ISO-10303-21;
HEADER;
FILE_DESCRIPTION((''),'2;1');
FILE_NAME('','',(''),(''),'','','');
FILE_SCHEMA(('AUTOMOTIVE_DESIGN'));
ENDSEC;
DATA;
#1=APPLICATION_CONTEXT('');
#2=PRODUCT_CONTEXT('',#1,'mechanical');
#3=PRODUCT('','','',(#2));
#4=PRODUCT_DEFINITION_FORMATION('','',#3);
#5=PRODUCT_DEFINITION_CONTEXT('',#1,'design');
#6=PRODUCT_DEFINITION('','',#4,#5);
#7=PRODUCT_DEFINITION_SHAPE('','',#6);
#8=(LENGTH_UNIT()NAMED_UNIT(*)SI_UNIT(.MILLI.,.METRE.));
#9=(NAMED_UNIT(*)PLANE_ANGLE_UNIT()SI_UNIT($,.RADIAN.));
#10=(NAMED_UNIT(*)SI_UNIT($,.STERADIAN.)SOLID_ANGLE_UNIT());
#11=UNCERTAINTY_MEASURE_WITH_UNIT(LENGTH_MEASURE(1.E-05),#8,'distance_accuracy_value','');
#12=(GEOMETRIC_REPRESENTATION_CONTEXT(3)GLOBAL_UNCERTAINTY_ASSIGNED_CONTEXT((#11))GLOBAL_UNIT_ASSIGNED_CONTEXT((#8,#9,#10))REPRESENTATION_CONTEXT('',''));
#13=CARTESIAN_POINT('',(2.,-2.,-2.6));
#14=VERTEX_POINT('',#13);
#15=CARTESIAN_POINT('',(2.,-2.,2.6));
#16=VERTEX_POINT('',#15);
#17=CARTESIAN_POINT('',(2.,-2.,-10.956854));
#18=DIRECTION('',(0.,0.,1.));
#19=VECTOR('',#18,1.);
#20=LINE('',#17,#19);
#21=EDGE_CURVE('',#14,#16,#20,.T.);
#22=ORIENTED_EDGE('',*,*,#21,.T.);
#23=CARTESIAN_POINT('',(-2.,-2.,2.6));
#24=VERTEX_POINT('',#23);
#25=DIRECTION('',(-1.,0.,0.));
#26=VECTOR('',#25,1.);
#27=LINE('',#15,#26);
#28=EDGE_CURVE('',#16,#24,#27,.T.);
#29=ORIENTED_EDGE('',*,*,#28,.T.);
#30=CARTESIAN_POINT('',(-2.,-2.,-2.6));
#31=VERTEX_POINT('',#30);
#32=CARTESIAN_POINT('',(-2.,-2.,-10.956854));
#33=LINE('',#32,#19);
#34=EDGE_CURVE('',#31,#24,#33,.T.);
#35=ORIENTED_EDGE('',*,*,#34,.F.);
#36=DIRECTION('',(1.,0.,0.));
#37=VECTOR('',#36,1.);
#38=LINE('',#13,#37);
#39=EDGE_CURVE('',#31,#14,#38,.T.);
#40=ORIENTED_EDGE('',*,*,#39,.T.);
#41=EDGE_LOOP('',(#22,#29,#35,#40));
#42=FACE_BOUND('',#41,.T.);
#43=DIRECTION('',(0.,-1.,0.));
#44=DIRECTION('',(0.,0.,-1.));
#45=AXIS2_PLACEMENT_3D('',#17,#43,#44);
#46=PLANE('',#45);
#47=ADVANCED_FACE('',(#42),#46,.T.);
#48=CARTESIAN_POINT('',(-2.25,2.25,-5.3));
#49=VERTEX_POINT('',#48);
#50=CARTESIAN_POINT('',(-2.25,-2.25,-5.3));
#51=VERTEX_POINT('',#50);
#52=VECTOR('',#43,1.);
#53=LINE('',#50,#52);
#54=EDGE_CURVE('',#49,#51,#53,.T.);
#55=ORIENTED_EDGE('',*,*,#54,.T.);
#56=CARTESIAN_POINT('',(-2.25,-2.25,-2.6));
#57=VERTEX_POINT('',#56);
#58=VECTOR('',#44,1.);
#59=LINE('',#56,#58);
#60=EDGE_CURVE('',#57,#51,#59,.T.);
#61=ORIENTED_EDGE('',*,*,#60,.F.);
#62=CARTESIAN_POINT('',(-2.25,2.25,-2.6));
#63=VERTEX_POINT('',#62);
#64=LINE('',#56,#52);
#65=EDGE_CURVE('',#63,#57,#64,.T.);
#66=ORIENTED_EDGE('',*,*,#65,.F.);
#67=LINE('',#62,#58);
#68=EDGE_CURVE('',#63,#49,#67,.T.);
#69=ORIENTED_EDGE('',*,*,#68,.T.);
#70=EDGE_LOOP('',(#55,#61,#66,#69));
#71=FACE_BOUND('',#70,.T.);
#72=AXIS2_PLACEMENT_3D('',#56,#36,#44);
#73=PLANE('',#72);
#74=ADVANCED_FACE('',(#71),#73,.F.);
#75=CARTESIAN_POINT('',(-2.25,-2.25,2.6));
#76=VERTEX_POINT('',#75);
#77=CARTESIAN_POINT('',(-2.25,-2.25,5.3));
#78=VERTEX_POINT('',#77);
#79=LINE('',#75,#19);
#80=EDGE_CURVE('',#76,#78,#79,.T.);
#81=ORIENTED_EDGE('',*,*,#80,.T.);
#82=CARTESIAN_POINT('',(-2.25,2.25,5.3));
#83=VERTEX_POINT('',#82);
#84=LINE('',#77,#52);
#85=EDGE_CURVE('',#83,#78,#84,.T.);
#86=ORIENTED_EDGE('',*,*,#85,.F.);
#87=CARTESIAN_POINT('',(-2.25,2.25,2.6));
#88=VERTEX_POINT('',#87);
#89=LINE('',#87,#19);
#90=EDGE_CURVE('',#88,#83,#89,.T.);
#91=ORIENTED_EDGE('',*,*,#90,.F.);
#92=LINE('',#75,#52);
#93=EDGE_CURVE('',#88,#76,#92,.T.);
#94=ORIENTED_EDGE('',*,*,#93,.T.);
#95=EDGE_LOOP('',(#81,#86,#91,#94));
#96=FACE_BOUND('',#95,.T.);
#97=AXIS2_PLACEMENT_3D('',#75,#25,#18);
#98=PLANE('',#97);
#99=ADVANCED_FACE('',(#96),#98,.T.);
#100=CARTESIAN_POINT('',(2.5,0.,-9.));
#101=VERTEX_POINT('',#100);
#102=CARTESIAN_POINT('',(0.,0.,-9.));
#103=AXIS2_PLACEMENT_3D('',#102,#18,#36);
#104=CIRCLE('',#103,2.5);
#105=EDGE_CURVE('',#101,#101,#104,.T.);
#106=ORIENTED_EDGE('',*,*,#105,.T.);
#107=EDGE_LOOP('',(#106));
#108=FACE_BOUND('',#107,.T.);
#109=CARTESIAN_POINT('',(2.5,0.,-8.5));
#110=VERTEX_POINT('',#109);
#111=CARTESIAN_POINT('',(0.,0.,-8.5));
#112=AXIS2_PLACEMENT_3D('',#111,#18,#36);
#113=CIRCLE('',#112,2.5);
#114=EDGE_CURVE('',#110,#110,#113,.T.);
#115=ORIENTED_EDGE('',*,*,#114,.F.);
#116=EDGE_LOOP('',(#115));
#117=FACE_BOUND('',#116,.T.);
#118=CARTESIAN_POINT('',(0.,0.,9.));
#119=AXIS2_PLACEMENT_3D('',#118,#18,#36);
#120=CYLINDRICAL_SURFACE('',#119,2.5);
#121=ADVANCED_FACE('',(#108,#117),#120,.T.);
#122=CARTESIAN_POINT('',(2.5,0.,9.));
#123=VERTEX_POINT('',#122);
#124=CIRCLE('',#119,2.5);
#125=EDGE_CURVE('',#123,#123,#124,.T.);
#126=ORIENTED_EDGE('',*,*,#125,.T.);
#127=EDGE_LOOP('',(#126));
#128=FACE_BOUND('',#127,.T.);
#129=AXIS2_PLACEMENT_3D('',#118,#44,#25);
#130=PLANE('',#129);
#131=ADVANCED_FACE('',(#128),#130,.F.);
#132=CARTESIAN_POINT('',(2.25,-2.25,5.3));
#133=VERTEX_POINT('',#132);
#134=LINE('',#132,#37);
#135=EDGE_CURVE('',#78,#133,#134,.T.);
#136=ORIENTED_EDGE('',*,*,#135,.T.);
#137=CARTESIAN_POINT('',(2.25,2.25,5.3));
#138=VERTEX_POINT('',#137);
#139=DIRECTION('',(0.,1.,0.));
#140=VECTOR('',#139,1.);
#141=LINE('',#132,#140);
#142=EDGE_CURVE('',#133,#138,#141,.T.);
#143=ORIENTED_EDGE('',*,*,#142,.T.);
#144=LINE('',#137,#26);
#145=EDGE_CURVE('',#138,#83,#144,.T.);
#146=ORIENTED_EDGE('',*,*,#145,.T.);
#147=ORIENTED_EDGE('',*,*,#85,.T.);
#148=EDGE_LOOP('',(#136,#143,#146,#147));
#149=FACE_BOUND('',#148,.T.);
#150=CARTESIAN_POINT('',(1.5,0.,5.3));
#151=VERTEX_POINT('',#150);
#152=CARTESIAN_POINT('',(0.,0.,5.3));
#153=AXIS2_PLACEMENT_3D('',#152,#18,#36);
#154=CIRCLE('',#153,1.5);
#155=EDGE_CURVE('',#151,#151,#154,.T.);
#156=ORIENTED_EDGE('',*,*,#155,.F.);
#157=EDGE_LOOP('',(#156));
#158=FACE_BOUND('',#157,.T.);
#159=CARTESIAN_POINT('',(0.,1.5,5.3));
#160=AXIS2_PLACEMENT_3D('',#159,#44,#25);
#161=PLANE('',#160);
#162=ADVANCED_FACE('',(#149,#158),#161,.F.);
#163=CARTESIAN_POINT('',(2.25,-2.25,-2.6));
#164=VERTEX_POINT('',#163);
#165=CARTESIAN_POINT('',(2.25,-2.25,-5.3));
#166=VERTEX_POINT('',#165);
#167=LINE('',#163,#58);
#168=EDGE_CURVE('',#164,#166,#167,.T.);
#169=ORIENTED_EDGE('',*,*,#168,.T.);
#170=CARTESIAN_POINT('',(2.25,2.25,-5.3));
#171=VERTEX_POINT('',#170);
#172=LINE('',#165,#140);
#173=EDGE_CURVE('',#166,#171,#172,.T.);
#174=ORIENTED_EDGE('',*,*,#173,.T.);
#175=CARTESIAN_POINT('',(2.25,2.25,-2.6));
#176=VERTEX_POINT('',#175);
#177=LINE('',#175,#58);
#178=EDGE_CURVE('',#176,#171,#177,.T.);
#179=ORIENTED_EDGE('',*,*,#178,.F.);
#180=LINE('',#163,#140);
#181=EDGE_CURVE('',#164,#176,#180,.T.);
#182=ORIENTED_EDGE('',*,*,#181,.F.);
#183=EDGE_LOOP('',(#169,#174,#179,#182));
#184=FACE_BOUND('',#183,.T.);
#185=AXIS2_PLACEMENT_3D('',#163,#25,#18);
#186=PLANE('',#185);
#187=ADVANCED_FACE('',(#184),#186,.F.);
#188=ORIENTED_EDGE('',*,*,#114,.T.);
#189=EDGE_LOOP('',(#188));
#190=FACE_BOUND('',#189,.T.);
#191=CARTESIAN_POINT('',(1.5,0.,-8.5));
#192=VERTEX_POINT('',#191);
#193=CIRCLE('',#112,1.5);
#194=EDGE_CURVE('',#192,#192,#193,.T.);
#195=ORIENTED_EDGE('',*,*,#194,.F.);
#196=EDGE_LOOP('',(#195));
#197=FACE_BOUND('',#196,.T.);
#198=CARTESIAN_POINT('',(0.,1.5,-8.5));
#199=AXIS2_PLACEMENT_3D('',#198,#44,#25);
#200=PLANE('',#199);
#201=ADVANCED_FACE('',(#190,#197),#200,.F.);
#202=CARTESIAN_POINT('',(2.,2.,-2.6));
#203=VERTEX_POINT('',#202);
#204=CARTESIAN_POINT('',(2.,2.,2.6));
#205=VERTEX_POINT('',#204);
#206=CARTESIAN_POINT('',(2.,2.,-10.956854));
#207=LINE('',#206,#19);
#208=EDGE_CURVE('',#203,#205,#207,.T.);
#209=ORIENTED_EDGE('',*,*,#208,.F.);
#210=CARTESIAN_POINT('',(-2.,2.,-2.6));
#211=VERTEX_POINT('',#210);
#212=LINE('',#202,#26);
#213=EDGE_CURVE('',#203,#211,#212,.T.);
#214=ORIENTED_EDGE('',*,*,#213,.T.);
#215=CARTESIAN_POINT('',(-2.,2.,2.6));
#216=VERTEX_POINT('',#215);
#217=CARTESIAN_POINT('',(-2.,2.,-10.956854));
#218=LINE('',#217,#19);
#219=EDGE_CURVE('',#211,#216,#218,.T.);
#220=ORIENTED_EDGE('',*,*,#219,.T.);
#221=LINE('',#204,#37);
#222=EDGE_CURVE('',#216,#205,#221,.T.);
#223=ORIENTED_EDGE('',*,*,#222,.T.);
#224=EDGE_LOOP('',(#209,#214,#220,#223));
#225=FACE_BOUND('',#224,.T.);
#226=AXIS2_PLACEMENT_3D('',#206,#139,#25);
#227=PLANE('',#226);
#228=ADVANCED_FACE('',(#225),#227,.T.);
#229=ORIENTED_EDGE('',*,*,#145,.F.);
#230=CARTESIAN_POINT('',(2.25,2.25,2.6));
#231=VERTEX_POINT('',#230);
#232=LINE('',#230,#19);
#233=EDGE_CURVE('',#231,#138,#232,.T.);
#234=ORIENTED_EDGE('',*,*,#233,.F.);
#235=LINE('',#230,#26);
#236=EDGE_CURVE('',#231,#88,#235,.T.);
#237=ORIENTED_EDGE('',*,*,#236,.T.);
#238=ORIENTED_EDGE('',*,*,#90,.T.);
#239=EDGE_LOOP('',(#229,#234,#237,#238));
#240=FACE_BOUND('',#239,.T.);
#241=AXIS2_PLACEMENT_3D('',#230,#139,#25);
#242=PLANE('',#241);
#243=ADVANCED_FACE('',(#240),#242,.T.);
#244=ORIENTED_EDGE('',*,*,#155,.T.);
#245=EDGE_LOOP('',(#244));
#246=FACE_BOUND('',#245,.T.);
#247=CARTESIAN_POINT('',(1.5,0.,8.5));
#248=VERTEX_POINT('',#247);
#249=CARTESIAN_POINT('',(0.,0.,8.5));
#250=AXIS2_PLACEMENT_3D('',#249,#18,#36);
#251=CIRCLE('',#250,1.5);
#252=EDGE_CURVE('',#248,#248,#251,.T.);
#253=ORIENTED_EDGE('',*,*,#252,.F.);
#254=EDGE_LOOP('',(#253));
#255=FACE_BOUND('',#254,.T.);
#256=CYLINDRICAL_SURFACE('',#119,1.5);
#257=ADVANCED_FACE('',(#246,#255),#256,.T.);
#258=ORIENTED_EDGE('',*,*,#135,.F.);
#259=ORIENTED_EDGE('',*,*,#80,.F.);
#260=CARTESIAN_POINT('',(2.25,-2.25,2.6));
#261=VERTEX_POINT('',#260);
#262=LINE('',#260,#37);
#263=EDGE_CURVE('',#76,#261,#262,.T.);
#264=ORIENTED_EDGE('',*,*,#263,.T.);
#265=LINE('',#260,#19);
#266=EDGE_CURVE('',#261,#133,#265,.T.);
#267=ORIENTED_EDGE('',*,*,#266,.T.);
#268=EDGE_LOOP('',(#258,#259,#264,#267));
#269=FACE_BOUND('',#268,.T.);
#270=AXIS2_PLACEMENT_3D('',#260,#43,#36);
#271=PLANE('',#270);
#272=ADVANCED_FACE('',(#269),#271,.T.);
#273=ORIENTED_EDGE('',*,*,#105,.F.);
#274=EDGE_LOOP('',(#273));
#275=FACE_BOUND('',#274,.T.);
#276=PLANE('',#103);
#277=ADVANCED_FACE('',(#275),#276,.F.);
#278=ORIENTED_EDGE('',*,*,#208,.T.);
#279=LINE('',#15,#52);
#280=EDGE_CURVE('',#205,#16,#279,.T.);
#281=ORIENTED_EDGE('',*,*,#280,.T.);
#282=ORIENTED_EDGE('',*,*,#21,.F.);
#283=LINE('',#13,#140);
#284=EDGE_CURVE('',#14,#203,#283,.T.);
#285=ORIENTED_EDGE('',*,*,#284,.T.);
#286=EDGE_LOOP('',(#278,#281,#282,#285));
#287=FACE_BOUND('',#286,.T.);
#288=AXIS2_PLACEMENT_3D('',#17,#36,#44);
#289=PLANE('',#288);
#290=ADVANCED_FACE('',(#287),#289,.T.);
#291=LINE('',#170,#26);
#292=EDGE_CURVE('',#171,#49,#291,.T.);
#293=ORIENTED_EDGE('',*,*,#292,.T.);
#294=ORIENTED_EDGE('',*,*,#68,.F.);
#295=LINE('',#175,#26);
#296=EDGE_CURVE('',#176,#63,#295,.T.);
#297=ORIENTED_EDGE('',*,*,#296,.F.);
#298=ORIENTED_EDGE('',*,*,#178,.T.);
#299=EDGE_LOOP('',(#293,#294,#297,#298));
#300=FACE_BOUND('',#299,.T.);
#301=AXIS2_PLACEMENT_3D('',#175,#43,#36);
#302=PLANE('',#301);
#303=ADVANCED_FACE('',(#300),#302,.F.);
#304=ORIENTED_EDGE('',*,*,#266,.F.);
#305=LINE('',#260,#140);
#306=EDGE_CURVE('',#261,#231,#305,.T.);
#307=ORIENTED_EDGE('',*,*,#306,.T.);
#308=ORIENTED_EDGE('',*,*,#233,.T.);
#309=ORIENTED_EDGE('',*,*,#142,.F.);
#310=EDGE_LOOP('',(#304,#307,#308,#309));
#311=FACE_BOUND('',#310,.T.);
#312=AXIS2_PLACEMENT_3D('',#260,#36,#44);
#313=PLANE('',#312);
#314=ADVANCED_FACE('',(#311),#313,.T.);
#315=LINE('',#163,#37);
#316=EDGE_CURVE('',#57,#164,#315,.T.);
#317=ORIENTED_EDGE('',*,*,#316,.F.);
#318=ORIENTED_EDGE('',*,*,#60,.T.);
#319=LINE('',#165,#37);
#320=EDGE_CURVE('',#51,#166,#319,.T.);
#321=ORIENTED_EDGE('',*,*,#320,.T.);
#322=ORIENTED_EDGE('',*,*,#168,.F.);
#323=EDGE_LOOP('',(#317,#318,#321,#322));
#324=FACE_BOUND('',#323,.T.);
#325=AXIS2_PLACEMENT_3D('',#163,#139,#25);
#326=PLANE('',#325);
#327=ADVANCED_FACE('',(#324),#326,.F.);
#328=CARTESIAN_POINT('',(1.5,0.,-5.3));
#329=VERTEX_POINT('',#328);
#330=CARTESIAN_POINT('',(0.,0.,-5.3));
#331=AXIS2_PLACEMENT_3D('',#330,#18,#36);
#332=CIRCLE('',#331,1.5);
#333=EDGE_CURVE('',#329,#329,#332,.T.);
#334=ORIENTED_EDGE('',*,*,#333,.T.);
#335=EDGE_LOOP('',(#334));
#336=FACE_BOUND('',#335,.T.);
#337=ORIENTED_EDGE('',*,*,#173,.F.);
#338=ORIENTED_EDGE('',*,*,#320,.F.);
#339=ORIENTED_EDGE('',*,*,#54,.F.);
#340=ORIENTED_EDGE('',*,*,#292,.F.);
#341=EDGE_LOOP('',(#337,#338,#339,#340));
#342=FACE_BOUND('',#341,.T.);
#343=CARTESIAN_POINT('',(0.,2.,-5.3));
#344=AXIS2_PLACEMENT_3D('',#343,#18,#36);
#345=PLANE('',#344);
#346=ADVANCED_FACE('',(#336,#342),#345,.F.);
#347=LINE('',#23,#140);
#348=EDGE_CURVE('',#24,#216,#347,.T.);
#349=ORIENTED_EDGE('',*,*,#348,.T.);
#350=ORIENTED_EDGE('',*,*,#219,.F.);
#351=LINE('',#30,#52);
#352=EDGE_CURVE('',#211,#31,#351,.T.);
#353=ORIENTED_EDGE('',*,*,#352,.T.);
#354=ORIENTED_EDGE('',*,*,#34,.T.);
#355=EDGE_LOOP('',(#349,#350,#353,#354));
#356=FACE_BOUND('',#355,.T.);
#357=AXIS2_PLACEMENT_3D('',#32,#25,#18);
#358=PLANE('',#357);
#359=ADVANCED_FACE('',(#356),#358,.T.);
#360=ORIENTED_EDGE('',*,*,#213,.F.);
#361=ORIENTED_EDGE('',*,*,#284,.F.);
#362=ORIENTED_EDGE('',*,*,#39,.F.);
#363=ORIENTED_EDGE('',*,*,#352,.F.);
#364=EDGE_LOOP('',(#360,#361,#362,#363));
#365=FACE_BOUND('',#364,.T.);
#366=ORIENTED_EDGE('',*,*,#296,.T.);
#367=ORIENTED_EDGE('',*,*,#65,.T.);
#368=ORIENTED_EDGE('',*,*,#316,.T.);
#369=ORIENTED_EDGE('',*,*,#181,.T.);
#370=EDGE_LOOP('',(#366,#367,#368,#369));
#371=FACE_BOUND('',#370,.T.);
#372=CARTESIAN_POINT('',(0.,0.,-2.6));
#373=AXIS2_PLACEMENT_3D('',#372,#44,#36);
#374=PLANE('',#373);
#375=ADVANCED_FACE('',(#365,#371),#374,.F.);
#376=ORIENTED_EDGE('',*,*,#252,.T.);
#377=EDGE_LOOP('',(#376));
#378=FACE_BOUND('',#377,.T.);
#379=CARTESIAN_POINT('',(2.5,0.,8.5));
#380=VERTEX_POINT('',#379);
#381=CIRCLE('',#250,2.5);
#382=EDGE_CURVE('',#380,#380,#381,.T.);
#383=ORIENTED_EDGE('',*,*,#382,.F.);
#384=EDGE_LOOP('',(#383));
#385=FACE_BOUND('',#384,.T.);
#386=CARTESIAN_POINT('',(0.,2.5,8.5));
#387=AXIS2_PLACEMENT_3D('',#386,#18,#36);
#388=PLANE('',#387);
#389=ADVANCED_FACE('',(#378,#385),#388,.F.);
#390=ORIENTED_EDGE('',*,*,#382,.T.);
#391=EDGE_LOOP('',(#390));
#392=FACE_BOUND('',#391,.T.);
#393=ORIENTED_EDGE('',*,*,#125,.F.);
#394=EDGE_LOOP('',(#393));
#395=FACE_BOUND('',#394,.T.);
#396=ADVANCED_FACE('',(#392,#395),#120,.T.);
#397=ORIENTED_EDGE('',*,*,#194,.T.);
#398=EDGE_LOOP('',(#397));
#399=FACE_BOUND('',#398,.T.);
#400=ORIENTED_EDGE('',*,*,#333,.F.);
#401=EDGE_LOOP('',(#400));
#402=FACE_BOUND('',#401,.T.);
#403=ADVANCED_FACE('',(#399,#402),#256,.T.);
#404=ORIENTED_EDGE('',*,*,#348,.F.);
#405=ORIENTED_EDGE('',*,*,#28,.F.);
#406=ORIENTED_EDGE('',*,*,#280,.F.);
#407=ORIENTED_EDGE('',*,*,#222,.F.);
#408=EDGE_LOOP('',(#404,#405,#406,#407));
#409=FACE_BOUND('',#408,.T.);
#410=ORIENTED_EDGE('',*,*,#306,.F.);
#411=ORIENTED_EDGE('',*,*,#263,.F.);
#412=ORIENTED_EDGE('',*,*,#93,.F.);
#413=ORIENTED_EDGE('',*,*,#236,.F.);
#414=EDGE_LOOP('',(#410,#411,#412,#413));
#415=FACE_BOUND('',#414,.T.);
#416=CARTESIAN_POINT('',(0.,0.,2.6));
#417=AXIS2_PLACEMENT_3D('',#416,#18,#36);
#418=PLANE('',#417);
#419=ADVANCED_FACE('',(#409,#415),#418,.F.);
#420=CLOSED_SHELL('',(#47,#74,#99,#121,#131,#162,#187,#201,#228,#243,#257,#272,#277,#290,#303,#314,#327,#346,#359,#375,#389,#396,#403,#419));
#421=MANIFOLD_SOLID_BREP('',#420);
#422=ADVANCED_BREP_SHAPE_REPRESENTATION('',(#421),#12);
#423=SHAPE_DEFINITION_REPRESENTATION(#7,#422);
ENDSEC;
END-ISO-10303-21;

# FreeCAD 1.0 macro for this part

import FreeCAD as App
import Part
import Sketcher
from FreeCAD import Vector
Q = App.Units.Quantity


def add_polygon(sketch, points):
    """Adds a closed chain of lines whose ends are joined by coincident constraints."""
    first, n = sketch.GeometryCount, len(points)
    for a, b in zip(points, points[1:] + points[:1]):
        sketch.addGeometry(Part.LineSegment(App.Vector(*a, 0), App.Vector(*b, 0)), False)
    for i in range(n):
        sketch.addConstraint(Sketcher.Constraint("Coincident", first + i, 2, first + (i + 1) % n, 1))

doc = App.newDocument("Part")
body = doc.addObject("PartDesign::Body", "Body")

# Sketch on YZ plane
sketch1 = body.newObject("Sketcher::SketchObject", "Sketch")
sketch1.AttachmentSupport = (doc.getObject("YZ_Plane"), [""])
sketch1.MapMode = "FlatFace"
add_polygon(sketch1, [(0, 9), (0, -9), (2.5, -9), (2.5, -8.5), (1.5, -8.5), (1.5, -5.3), (2, -5.3), (2, 5.3), (1.5, 5.3), (1.5, 8.5), (2.5, 8.5), (2.5, 9)])  # lines 0-11
sketch1.addConstraint(Sketcher.Constraint("Vertical", 0))
sketch1.addConstraint(Sketcher.Constraint("Horizontal", 1))
sketch1.addConstraint(Sketcher.Constraint("Vertical", 2))
sketch1.addConstraint(Sketcher.Constraint("Horizontal", 3))
sketch1.addConstraint(Sketcher.Constraint("Vertical", 4))
sketch1.addConstraint(Sketcher.Constraint("Horizontal", 5))
sketch1.addConstraint(Sketcher.Constraint("Vertical", 6))
sketch1.addConstraint(Sketcher.Constraint("Horizontal", 7))
sketch1.addConstraint(Sketcher.Constraint("Vertical", 8))
sketch1.addConstraint(Sketcher.Constraint("Horizontal", 9))
sketch1.addConstraint(Sketcher.Constraint("Vertical", 10))
sketch1.addConstraint(Sketcher.Constraint("Horizontal", 11))
sketch1.addConstraint(Sketcher.Constraint("Symmetric", 0, 2, 11, 2, -1, 1))
sketch1.addConstraint(Sketcher.Constraint("Symmetric", 4, 2, 7, 2, -1))
sketch1.addConstraint(Sketcher.Constraint("Symmetric", 2, 2, 9, 2, -1))
sketch1.addConstraint(Sketcher.Constraint("Equal", 7, 2))
sketch1.addConstraint(Sketcher.Constraint("DistanceX", 3, 2, 3, 1, Q("1 mm")))
sketch1.addConstraint(Sketcher.Constraint("DistanceY", 0, 2, 0, 1, Q("18 mm")))
sketch1.addConstraint(Sketcher.Constraint("DistanceX", 1, 1, 1, 2, Q("2.5 mm")))
sketch1.addConstraint(Sketcher.Constraint("DistanceX", 5, 1, 5, 2, Q("0.5 mm")))
sketch1.addConstraint(Sketcher.Constraint("DistanceY", 4, 1, 4, 2, Q("3.2 mm")))
revolution = body.newObject("PartDesign::Revolution", "Revolution")
revolution.Profile = sketch1
revolution.ReferenceAxis = (sketch1, ["V_Axis"])
revolution.Angle = 360

# Sketch on XY plane
sketch2 = body.newObject("Sketcher::SketchObject", "Sketch001")
sketch2.AttachmentSupport = (doc.getObject("XY_Plane"), [""])
sketch2.MapMode = "FlatFace"
sketch2.AttachmentOffset = App.Placement(Vector(0, 0, 5.3), App.Rotation())
add_polygon(sketch2, [(-2, 2), (-2, -2), (2, -2), (2, 2)])  # lines 0-3
sketch2.addConstraint(Sketcher.Constraint("Vertical", 0))
sketch2.addConstraint(Sketcher.Constraint("Horizontal", 1))
sketch2.addConstraint(Sketcher.Constraint("Vertical", 2))
sketch2.addConstraint(Sketcher.Constraint("Horizontal", 3))
sketch2.addConstraint(Sketcher.Constraint("Symmetric", 0, 2, 2, 2, -1, 1))
sketch2.addConstraint(Sketcher.Constraint("Equal", 3, 0))
sketch2.addConstraint(Sketcher.Constraint("DistanceX", 1, 1, 1, 2, Q("4 mm")))
pad1 = body.newObject("PartDesign::Pad", "Pad")
pad1.Profile = sketch2
pad1.Length = 10.6
pad1.Reversed = True

# Sketch on XY plane
sketch3 = body.newObject("Sketcher::SketchObject", "Sketch002")
sketch3.AttachmentSupport = (doc.getObject("XY_Plane"), [""])
sketch3.MapMode = "FlatFace"
sketch3.AttachmentOffset = App.Placement(Vector(0, 0, 5.3), App.Rotation())
add_polygon(sketch3, [(-2.2, 2.2), (-2.2, -2.2), (2.2, -2.2), (2.2, 2.2)])  # lines 0-3
sketch3.addConstraint(Sketcher.Constraint("Vertical", 0))
sketch3.addConstraint(Sketcher.Constraint("Horizontal", 1))
sketch3.addConstraint(Sketcher.Constraint("Vertical", 2))
sketch3.addConstraint(Sketcher.Constraint("Horizontal", 3))
sketch3.addConstraint(Sketcher.Constraint("Symmetric", 0, 2, 2, 2, -1, 1))
sketch3.addConstraint(Sketcher.Constraint("Equal", 3, 0))
sketch3.addConstraint(Sketcher.Constraint("DistanceX", 1, 1, 1, 2, Q("4.5 mm")))
pad2 = body.newObject("PartDesign::Pad", "Pad001")
pad2.Profile = sketch3
pad2.Length = 2.7
pad2.Reversed = True
doc.recompute()

mirrored = body.newObject("PartDesign::Mirrored", "Mirrored")
mirrored.Originals = [pad2]
mirrored.MirrorPlane = (doc.getObject("XY_Plane"), [""])
body.Tip = mirrored

doc.recompute()
